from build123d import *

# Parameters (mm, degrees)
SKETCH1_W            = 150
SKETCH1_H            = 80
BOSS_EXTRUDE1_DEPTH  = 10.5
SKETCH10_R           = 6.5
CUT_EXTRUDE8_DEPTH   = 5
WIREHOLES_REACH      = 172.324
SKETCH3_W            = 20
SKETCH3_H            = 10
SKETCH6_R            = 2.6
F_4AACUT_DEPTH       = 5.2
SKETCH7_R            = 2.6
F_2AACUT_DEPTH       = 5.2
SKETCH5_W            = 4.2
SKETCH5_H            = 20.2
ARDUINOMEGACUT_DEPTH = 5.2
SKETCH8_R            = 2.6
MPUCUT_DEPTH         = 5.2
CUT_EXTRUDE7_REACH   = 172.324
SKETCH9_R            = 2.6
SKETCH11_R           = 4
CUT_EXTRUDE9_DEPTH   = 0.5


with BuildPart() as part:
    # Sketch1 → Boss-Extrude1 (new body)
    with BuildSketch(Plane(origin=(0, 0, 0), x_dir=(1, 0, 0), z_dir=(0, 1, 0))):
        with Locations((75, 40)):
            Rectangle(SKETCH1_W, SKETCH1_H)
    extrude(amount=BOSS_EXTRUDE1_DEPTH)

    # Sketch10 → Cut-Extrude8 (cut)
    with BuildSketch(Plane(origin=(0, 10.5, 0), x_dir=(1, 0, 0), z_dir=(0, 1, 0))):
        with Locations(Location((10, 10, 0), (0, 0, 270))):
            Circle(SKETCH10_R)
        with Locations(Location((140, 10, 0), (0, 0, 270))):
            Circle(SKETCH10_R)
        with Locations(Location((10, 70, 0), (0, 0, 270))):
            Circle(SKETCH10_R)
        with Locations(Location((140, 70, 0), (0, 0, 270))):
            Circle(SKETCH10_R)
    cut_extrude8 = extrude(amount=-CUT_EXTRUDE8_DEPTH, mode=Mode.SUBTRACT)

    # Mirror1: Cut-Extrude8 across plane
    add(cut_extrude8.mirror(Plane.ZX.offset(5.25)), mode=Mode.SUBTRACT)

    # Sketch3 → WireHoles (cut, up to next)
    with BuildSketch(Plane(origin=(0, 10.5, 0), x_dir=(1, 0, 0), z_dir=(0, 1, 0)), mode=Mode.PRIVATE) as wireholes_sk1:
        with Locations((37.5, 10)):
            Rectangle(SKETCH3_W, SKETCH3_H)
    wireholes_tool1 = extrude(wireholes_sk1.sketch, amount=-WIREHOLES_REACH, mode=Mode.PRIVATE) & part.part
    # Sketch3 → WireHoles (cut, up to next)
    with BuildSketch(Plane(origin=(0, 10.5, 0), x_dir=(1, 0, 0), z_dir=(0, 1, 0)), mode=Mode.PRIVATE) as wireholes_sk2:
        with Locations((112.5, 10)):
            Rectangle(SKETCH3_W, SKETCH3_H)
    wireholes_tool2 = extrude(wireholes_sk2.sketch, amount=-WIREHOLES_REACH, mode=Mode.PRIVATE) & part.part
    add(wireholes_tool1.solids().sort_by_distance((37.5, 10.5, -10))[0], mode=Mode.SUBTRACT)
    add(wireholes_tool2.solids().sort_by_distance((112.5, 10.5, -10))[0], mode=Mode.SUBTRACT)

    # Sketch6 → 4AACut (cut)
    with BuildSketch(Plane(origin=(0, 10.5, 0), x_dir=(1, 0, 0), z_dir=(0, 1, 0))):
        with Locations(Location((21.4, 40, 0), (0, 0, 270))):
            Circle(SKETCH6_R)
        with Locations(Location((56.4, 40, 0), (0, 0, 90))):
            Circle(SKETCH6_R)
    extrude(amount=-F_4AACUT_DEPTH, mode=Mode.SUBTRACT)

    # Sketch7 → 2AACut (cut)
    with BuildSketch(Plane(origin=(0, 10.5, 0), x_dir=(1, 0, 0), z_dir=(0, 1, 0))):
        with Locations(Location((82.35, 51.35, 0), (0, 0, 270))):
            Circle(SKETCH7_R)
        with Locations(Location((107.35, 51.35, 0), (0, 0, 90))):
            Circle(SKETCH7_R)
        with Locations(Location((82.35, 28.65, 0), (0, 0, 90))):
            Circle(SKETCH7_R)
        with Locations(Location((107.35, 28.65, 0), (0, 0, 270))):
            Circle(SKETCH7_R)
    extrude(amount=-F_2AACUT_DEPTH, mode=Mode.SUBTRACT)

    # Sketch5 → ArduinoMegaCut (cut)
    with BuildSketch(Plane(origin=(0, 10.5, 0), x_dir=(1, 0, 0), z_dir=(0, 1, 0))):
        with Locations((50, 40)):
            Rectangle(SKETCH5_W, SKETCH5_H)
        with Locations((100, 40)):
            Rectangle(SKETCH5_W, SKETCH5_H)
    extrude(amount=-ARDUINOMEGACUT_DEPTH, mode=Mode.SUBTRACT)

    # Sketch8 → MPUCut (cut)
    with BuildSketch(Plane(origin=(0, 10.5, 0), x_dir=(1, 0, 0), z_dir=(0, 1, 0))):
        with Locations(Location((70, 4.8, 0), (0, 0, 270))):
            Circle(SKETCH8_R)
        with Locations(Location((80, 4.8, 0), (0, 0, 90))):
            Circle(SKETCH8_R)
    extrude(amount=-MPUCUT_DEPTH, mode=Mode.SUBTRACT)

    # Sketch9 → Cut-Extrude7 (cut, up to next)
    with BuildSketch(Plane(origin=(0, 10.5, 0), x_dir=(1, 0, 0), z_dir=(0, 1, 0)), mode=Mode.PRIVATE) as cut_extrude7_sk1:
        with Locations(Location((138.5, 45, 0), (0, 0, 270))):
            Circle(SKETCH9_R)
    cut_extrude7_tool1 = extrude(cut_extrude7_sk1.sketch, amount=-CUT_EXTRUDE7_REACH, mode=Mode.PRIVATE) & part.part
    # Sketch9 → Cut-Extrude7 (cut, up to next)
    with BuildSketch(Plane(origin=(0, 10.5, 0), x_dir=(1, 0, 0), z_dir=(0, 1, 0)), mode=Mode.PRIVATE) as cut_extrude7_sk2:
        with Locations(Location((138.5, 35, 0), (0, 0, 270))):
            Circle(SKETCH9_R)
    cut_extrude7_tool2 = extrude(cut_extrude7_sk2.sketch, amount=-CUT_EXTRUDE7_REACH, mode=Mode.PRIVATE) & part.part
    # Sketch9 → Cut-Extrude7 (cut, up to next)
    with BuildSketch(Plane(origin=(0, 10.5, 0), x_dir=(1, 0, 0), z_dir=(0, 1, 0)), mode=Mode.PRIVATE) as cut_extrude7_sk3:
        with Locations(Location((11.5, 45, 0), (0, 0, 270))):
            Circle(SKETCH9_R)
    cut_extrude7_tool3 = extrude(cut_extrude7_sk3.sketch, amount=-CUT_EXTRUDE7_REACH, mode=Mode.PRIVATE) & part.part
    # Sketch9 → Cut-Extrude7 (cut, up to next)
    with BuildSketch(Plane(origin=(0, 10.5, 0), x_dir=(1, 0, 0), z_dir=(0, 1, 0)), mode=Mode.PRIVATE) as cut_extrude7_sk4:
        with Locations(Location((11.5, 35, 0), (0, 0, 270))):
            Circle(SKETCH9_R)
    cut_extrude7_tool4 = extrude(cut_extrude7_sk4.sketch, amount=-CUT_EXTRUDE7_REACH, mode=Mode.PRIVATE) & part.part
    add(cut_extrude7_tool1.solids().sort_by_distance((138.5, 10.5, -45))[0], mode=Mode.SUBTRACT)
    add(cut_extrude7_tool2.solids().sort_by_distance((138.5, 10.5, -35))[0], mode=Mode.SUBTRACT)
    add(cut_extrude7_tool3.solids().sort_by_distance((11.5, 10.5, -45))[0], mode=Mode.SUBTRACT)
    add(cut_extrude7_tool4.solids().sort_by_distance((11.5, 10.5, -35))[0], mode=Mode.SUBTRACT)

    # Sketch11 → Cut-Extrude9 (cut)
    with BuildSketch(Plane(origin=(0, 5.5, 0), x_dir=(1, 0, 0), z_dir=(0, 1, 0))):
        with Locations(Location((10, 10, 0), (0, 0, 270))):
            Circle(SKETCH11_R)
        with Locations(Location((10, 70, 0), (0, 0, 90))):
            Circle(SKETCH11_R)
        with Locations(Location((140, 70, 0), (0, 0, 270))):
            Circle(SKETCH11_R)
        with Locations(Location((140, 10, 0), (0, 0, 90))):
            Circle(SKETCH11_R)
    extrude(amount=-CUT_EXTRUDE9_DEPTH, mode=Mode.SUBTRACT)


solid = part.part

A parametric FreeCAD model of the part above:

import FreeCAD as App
import Part
import Sketcher

V = App.Vector
Q = App.Units.Quantity

doc = App.newDocument("Part")
body = doc.addObject("PartDesign::Body", "Body")

# Sketch on XZ plane
sketch1 = body.newObject("Sketcher::SketchObject", "Sketch")
sketch1.AttachmentSupport = (doc.getObject("XZ_Plane"), [""])
sketch1.MapMode = "FlatFace"
sketch1.addGeometry([
    Part.LineSegment(V(0, -80, 0), V(0, 0, 0)),
    Part.LineSegment(V(0, 0, 0), V(150, 0, 0)),
    Part.LineSegment(V(150, 0, 0), V(150, -80, 0)),
    Part.LineSegment(V(150, -80, 0), V(0, -80, 0)),
], False)
sketch1.addConstraint([
    Sketcher.Constraint("Coincident", 0, 2, 1, 1),
    Sketcher.Constraint("Coincident", 1, 2, 2, 1),
    Sketcher.Constraint("Coincident", 2, 2, 3, 1),
    Sketcher.Constraint("Coincident", 3, 2, 0, 1),
    Sketcher.Constraint("Vertical", 0),
    Sketcher.Constraint("Horizontal", 1),
    Sketcher.Constraint("Vertical", 2),
    Sketcher.Constraint("Horizontal", 3),
    Sketcher.Constraint("Coincident", 0, 2, -1, 1),
    Sketcher.Constraint("DistanceX", 1, 1, 1, 2, Q("150 mm")),
    Sketcher.Constraint("DistanceY", 0, 1, 0, 2, Q("80 mm")),
])
pad1 = body.newObject("PartDesign::Pad", "Pad")
pad1.Profile = sketch1
pad1.Length = 10.5
pad1.Reversed = True

# Sketch on XZ plane
sketch2 = body.newObject("Sketcher::SketchObject", "Sketch001")
sketch2.AttachmentSupport = (doc.getObject("XZ_Plane"), [""])
sketch2.MapMode = "FlatFace"
sketch2.AttachmentOffset = App.Placement(V(0, 0, -10.5), App.Rotation())
sketch2.addGeometry([
    Part.Circle(V(10, -10, 0), V(0, 0, 1), 6),
    Part.Circle(V(140, -10, 0), V(0, 0, 1), 6),
    Part.Circle(V(10, -70, 0), V(0, 0, 1), 6),
    Part.Circle(V(140, -70, 0), V(0, 0, 1), 6),
], False)
sketch2.addConstraint([
    Sketcher.Constraint("Equal", 0, 1),
    Sketcher.Constraint("Equal", 1, 2),
    Sketcher.Constraint("Equal", 2, 3),
    Sketcher.Constraint("Horizontal", 0, 3, 1, 3),
    Sketcher.Constraint("Horizontal", 2, 3, 3, 3),
    Sketcher.Constraint("Vertical", 0, 3, 2, 3),
    Sketcher.Constraint("Vertical", 1, 3, 3, 3),
    Sketcher.Constraint("Diameter", 0, Q("13 mm")),
    Sketcher.Constraint("DistanceX", -1, 1, 0, 3, Q("10 mm")),
    Sketcher.Constraint("DistanceY", 0, 3, -1, 1, Q("10 mm")),
    Sketcher.Constraint("DistanceX", -1, 1, 1, 3, Q("140 mm")),
    Sketcher.Constraint("DistanceY", 2, 3, -1, 1, Q("70 mm")),
])
pocket1 = body.newObject("PartDesign::Pocket", "Pocket")
pocket1.Profile = sketch2
pocket1.Length = 5
pocket1.Reversed = True
doc.recompute()

datumplane = body.newObject("PartDesign::Plane", "DatumPlane")
datumplane.AttachmentSupport = (doc.getObject("XZ_Plane"), [""])
datumplane.MapMode = "FlatFace"
datumplane.AttachmentOffset = App.Placement(V(0, 0, -5.25), App.Rotation())
mirrored = body.newObject("PartDesign::Mirrored", "Mirrored")
mirrored.Originals = [pocket1]
mirrored.MirrorPlane = (datumplane, [""])
body.Tip = mirrored

# Sketch on XZ plane
sketch3 = body.newObject("Sketcher::SketchObject", "Sketch002")
sketch3.AttachmentSupport = (doc.getObject("XZ_Plane"), [""])
sketch3.MapMode = "FlatFace"
sketch3.AttachmentOffset = App.Placement(V(0, 0, -10.5), App.Rotation())
sketch3.addGeometry([
    Part.LineSegment(V(28, -15, 0), V(28, -5, 0)),
    Part.LineSegment(V(28, -5, 0), V(48, -5, 0)),
    Part.LineSegment(V(48, -5, 0), V(48, -15, 0)),
    Part.LineSegment(V(48, -15, 0), V(28, -15, 0)),
], False)
sketch3.addConstraint([
    Sketcher.Constraint("Coincident", 0, 2, 1, 1),
    Sketcher.Constraint("Coincident", 1, 2, 2, 1),
    Sketcher.Constraint("Coincident", 2, 2, 3, 1),
    Sketcher.Constraint("Coincident", 3, 2, 0, 1),
    Sketcher.Constraint("Vertical", 0),
    Sketcher.Constraint("Horizontal", 1),
    Sketcher.Constraint("Vertical", 2),
    Sketcher.Constraint("Horizontal", 3),
    Sketcher.Constraint("DistanceX", 1, 1, 1, 2, Q("20 mm")),
    Sketcher.Constraint("DistanceY", 0, 1, 0, 2, Q("10 mm")),
    Sketcher.Constraint("DistanceY", 0, 2, -1, 1, Q("5 mm")),
    Sketcher.Constraint("DistanceX", -1, 1, 0, 2, Q("27.5 mm")),
])
pocket2 = body.newObject("PartDesign::Pocket", "Pocket001")
pocket2.Profile = sketch3
pocket2.Type = "UpToFirst"
pocket2.Reversed = True

# Sketch on XZ plane
sketch4 = body.newObject("Sketcher::SketchObject", "Sketch003")
sketch4.AttachmentSupport = (doc.getObject("XZ_Plane"), [""])
sketch4.MapMode = "FlatFace"
sketch4.AttachmentOffset = App.Placement(V(0, 0, -10.5), App.Rotation())
sketch4.addGeometry([
    Part.LineSegment(V(102, -15, 0), V(102, -5, 0)),
    Part.LineSegment(V(102, -5, 0), V(122, -5, 0)),
    Part.LineSegment(V(122, -5, 0), V(122, -15, 0)),
    Part.LineSegment(V(122, -15, 0), V(102, -15, 0)),
], False)
sketch4.addConstraint([
    Sketcher.Constraint("Coincident", 0, 2, 1, 1),
    Sketcher.Constraint("Coincident", 1, 2, 2, 1),
    Sketcher.Constraint("Coincident", 2, 2, 3, 1),
    Sketcher.Constraint("Coincident", 3, 2, 0, 1),
    Sketcher.Constraint("Vertical", 0),
    Sketcher.Constraint("Horizontal", 1),
    Sketcher.Constraint("Vertical", 2),
    Sketcher.Constraint("Horizontal", 3),
    Sketcher.Constraint("DistanceX", 1, 1, 1, 2, Q("20 mm")),
    Sketcher.Constraint("DistanceY", 0, 1, 0, 2, Q("10 mm")),
    Sketcher.Constraint("DistanceY", 0, 2, -1, 1, Q("5 mm")),
    Sketcher.Constraint("DistanceX", -1, 1, 0, 2, Q("102.5 mm")),
])
pocket3 = body.newObject("PartDesign::Pocket", "Pocket002")
pocket3.Profile = sketch4
pocket3.Type = "UpToFirst"
pocket3.Reversed = True

# Sketch on XZ plane
sketch5 = body.newObject("Sketcher::SketchObject", "Sketch004")
sketch5.AttachmentSupport = (doc.getObject("XZ_Plane"), [""])
sketch5.MapMode = "FlatFace"
sketch5.AttachmentOffset = App.Placement(V(0, 0, -10.5), App.Rotation())
sketch5.addGeometry([
    Part.Circle(V(21.4, -40, 0), V(0, 0, 1), 2.6),
    Part.Circle(V(56.4, -40, 0), V(0, 0, 1), 2.6),
], False)
sketch5.addConstraint([
    Sketcher.Constraint("Equal", 0, 1),
    Sketcher.Constraint("Horizontal", 0, 3, 1, 3),
    Sketcher.Constraint("Diameter", 0, Q("5.2 mm")),
    Sketcher.Constraint("DistanceY", 0, 3, -1, 1, Q("40 mm")),
    Sketcher.Constraint("DistanceX", 0, 3, 1, 3, Q("35 mm")),
    Sketcher.Constraint("DistanceX", -1, 1, 0, 3, Q("21.4 mm")),
])
pocket4 = body.newObject("PartDesign::Pocket", "Pocket003")
pocket4.Profile = sketch5
pocket4.Length = 5.2
pocket4.Reversed = True

# Sketch on XZ plane
sketch6 = body.newObject("Sketcher::SketchObject", "Sketch005")
sketch6.AttachmentSupport = (doc.getObject("XZ_Plane"), [""])
sketch6.MapMode = "FlatFace"
sketch6.AttachmentOffset = App.Placement(V(0, 0, -10.5), App.Rotation())
sketch6.addGeometry([
    Part.Circle(V(82.3, -51.4, 0), V(0, 0, 1), 2.6),
    Part.Circle(V(107.3, -51.4, 0), V(0, 0, 1), 2.6),
    Part.Circle(V(82.3, -28.6, 0), V(0, 0, 1), 2.6),
    Part.Circle(V(107.3, -28.6, 0), V(0, 0, 1), 2.6),
], False)
sketch6.addConstraint([
    Sketcher.Constraint("Equal", 0, 1),
    Sketcher.Constraint("Equal", 1, 2),
    Sketcher.Constraint("Equal", 2, 3),
    Sketcher.Constraint("Horizontal", 0, 3, 1, 3),
    Sketcher.Constraint("Horizontal", 2, 3, 3, 3),
    Sketcher.Constraint("Vertical", 0, 3, 2, 3),
    Sketcher.Constraint("Vertical", 1, 3, 3, 3),
    Sketcher.Constraint("Diameter", 0, Q("5.2 mm")),
    Sketcher.Constraint("DistanceX", 0, 3, 1, 3, Q("25 mm")),
    Sketcher.Constraint("DistanceY", 0, 3, 2, 3, Q("22.7 mm")),
    Sketcher.Constraint("DistanceX", -1, 1, 0, 3, Q("82.35 mm")),
    Sketcher.Constraint("DistanceY", 0, 3, -1, 1, Q("51.35 mm")),
])
pocket5 = body.newObject("PartDesign::Pocket", "Pocket004")
pocket5.Profile = sketch6
pocket5.Length = 5.2
pocket5.Reversed = True

# Sketch on XZ plane
sketch7 = body.newObject("Sketcher::SketchObject", "Sketch006")
sketch7.AttachmentSupport = (doc.getObject("XZ_Plane"), [""])
sketch7.MapMode = "FlatFace"
sketch7.AttachmentOffset = App.Placement(V(0, 0, -10.5), App.Rotation())
sketch7.addGeometry([
    Part.LineSegment(V(47.9, -50.1, 0), V(47.9, -29.9, 0)),  # 0
    Part.LineSegment(V(47.9, -29.9, 0), V(52.1, -29.9, 0)),  # 1
    Part.LineSegment(V(52.1, -29.9, 0), V(52.1, -50.1, 0)),  # 2
    Part.LineSegment(V(52.1, -50.1, 0), V(47.9, -50.1, 0)),  # 3
    Part.LineSegment(V(97.9, -50.1, 0), V(97.9, -29.9, 0)),  # 4
    Part.LineSegment(V(97.9, -29.9, 0), V(102.1, -29.9, 0)),  # 5
    Part.LineSegment(V(102.1, -29.9, 0), V(102.1, -50.1, 0)),  # 6
    Part.LineSegment(V(102.1, -50.1, 0), V(97.9, -50.1, 0)),  # 7
], False)
sketch7.addConstraint([
    Sketcher.Constraint("Coincident", 0, 2, 1, 1),
    Sketcher.Constraint("Coincident", 1, 2, 2, 1),
    Sketcher.Constraint("Coincident", 2, 2, 3, 1),
    Sketcher.Constraint("Coincident", 3, 2, 0, 1),
    Sketcher.Constraint("Coincident", 4, 2, 5, 1),
    Sketcher.Constraint("Coincident", 5, 2, 6, 1),
    Sketcher.Constraint("Coincident", 6, 2, 7, 1),
    Sketcher.Constraint("Coincident", 7, 2, 4, 1),
    Sketcher.Constraint("Vertical", 0),
    Sketcher.Constraint("Horizontal", 1),
    Sketcher.Constraint("Vertical", 2),
    Sketcher.Constraint("Horizontal", 3),
    Sketcher.Constraint("Vertical", 4),
    Sketcher.Constraint("Horizontal", 5),
    Sketcher.Constraint("Vertical", 6),
    Sketcher.Constraint("Horizontal", 7),
    Sketcher.Constraint("Horizontal", 1, 2, 4, 2),
    Sketcher.Constraint("Horizontal", 3, 2, 6, 2),
    Sketcher.Constraint("Equal", 3, 5),
    Sketcher.Constraint("DistanceX", 1, 1, 1, 2, Q("4.2 mm")),
    Sketcher.Constraint("DistanceY", 0, 1, 0, 2, Q("20.2 mm")),
    Sketcher.Constraint("DistanceX", 0, 2, 4, 2, Q("50 mm")),
    Sketcher.Constraint("DistanceX", -1, 1, 0, 2, Q("47.9 mm")),
    Sketcher.Constraint("DistanceY", 0, 2, -1, 1, Q("29.9 mm")),
])
pocket6 = body.newObject("PartDesign::Pocket", "Pocket005")
pocket6.Profile = sketch7
pocket6.Length = 5.2
pocket6.Reversed = True

# Sketch on XZ plane
sketch8 = body.newObject("Sketcher::SketchObject", "Sketch007")
sketch8.AttachmentSupport = (doc.getObject("XZ_Plane"), [""])
sketch8.MapMode = "FlatFace"
sketch8.AttachmentOffset = App.Placement(V(0, 0, -10.5), App.Rotation())
sketch8.addGeometry([
    Part.Circle(V(70, -4.8, 0), V(0, 0, 1), 2.6),
    Part.Circle(V(80, -4.8, 0), V(0, 0, 1), 2.6),
], False)
sketch8.addConstraint([
    Sketcher.Constraint("Equal", 0, 1),
    Sketcher.Constraint("Horizontal", 0, 3, 1, 3),
    Sketcher.Constraint("Diameter", 0, Q("5.2 mm")),
    Sketcher.Constraint("DistanceX", -1, 1, 0, 3, Q("70 mm")),
    Sketcher.Constraint("DistanceX", -1, 1, 1, 3, Q("80 mm")),
    Sketcher.Constraint("DistanceY", 0, 3, -1, 1, Q("4.8 mm")),
])
pocket7 = body.newObject("PartDesign::Pocket", "Pocket006")
pocket7.Profile = sketch8
pocket7.Length = 5.2
pocket7.Reversed = True

# Sketch on XZ plane
sketch9 = body.newObject("Sketcher::SketchObject", "Sketch008")
sketch9.AttachmentSupport = (doc.getObject("XZ_Plane"), [""])
sketch9.MapMode = "FlatFace"
sketch9.AttachmentOffset = App.Placement(V(0, 0, -10.5), App.Rotation())
sketch9.addGeometry(Part.Circle(V(138.5, -45, 0), V(0, 0, 1), 2.6), False)
sketch9.addConstraint([
    Sketcher.Constraint("Diameter", 0, Q("5.2 mm")),
    Sketcher.Constraint("DistanceY", 0, 3, -1, 1, Q("45 mm")),
    Sketcher.Constraint("DistanceX", -1, 1, 0, 3, Q("138.5 mm")),
])
pocket8 = body.newObject("PartDesign::Pocket", "Pocket007")
pocket8.Profile = sketch9
pocket8.Type = "UpToFirst"
pocket8.Reversed = True

# Sketch on XZ plane
sketch10 = body.newObject("Sketcher::SketchObject", "Sketch009")
sketch10.AttachmentSupport = (doc.getObject("XZ_Plane"), [""])
sketch10.MapMode = "FlatFace"
sketch10.AttachmentOffset = App.Placement(V(0, 0, -10.5), App.Rotation())
sketch10.addGeometry(Part.Circle(V(138.5, -35, 0), V(0, 0, 1), 2.6), False)
sketch10.addConstraint([
    Sketcher.Constraint("Diameter", 0, Q("5.2 mm")),
    Sketcher.Constraint("DistanceY", 0, 3, -1, 1, Q("35 mm")),
    Sketcher.Constraint("DistanceX", -1, 1, 0, 3, Q("138.5 mm")),
])
pocket9 = body.newObject("PartDesign::Pocket", "Pocket008")
pocket9.Profile = sketch10
pocket9.Type = "UpToFirst"
pocket9.Reversed = True

# Sketch on XZ plane
sketch11 = body.newObject("Sketcher::SketchObject", "Sketch010")
sketch11.AttachmentSupport = (doc.getObject("XZ_Plane"), [""])
sketch11.MapMode = "FlatFace"
sketch11.AttachmentOffset = App.Placement(V(0, 0, -10.5), App.Rotation())
sketch11.addGeometry(Part.Circle(V(11.5, -45, 0), V(0, 0, 1), 2.6), False)
sketch11.addConstraint([
    Sketcher.Constraint("Diameter", 0, Q("5.2 mm")),
    Sketcher.Constraint("DistanceY", 0, 3, -1, 1, Q("45 mm")),
    Sketcher.Constraint("DistanceX", -1, 1, 0, 3, Q("11.5 mm")),
])
pocket10 = body.newObject("PartDesign::Pocket", "Pocket009")
pocket10.Profile = sketch11
pocket10.Type = "UpToFirst"
pocket10.Reversed = True

# Sketch on XZ plane
sketch12 = body.newObject("Sketcher::SketchObject", "Sketch011")
sketch12.AttachmentSupport = (doc.getObject("XZ_Plane"), [""])
sketch12.MapMode = "FlatFace"
sketch12.AttachmentOffset = App.Placement(V(0, 0, -10.5), App.Rotation())
sketch12.addGeometry(Part.Circle(V(11.5, -35, 0), V(0, 0, 1), 2.6), False)
sketch12.addConstraint([
    Sketcher.Constraint("Diameter", 0, Q("5.2 mm")),
    Sketcher.Constraint("DistanceY", 0, 3, -1, 1, Q("35 mm")),
    Sketcher.Constraint("DistanceX", -1, 1, 0, 3, Q("11.5 mm")),
])
pocket11 = body.newObject("PartDesign::Pocket", "Pocket010")
pocket11.Profile = sketch12
pocket11.Type = "UpToFirst"
pocket11.Reversed = True

# Sketch on XZ plane
sketch13 = body.newObject("Sketcher::SketchObject", "Sketch012")
sketch13.AttachmentSupport = (doc.getObject("XZ_Plane"), [""])
sketch13.MapMode = "FlatFace"
sketch13.AttachmentOffset = App.Placement(V(0, 0, -5.5), App.Rotation())
sketch13.addGeometry([
    Part.Circle(V(10, -10, 0), V(0, 0, 1), 4),
    Part.Circle(V(10, -70, 0), V(0, 0, 1), 4),
    Part.Circle(V(140, -70, 0), V(0, 0, 1), 4),
    Part.Circle(V(140, -10, 0), V(0, 0, 1), 4),
], False)
sketch13.addConstraint([
    Sketcher.Constraint("Equal", 0, 1),
    Sketcher.Constraint("Equal", 1, 2),
    Sketcher.Constraint("Equal", 2, 3),
    Sketcher.Constraint("Horizontal", 1, 3, 2, 3),
    Sketcher.Constraint("Horizontal", 0, 3, 3, 3),
    Sketcher.Constraint("Vertical", 0, 3, 1, 3),
    Sketcher.Constraint("Vertical", 2, 3, 3, 3),
    Sketcher.Constraint("Diameter", 0, Q("8 mm")),
    Sketcher.Constraint("DistanceX", -1, 1, 0, 3, Q("10 mm")),
    Sketcher.Constraint("DistanceY", 0, 3, -1, 1, Q("10 mm")),
    Sketcher.Constraint("DistanceY", 1, 3, -1, 1, Q("70 mm")),
    Sketcher.Constraint("DistanceX", -1, 1, 2, 3, Q("140 mm")),
])
pocket12 = body.newObject("PartDesign::Pocket", "Pocket011")
pocket12.Profile = sketch13
pocket12.Length = 0.5
pocket12.Reversed = True

doc.recompute()
